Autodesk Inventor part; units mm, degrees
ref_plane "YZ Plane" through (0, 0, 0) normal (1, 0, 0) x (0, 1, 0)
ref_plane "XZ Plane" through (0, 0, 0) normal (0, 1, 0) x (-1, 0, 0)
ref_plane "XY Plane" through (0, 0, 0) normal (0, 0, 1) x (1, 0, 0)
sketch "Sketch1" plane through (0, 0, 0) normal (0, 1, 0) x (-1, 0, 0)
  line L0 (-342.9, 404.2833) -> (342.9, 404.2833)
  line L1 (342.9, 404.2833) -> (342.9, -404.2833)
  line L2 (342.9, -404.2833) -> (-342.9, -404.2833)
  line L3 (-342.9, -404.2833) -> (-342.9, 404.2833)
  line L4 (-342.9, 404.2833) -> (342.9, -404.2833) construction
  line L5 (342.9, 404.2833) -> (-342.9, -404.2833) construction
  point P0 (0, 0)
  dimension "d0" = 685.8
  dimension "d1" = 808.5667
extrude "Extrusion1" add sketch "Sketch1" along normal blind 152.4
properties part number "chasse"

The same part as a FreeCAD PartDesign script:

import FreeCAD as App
import Part
import Sketcher

V = App.Vector
Q = App.Units.Quantity


def add_polygon(sketch, points):
    """Adds a closed chain of lines whose ends are joined by coincident constraints."""
    first, n = sketch.GeometryCount, len(points)
    for a, b in zip(points, points[1:] + points[:1]):
        sketch.addGeometry(Part.LineSegment(App.Vector(*a, 0), App.Vector(*b, 0)), False)
    for i in range(n):
        sketch.addConstraint(Sketcher.Constraint("Coincident", first + i, 2, first + (i + 1) % n, 1))

doc = App.newDocument("Part")
body = doc.addObject("PartDesign::Body", "Body")

# Sketch on XZ plane
sketch1 = body.newObject("Sketcher::SketchObject", "Sketch")
sketch1.AttachmentSupport = (doc.getObject("XZ_Plane"), [""])
sketch1.MapMode = "FlatFace"
add_polygon(sketch1, [(-342.9, 404.2833), (342.9, 404.2833), (342.9, -404.2833), (-342.9, -404.2833)])  # lines 0-3
sketch1.addConstraint(Sketcher.Constraint("Horizontal", 0))
sketch1.addConstraint(Sketcher.Constraint("Vertical", 1))
sketch1.addConstraint(Sketcher.Constraint("Horizontal", 2))
sketch1.addConstraint(Sketcher.Constraint("Vertical", 3))
sketch1.addConstraint(Sketcher.Constraint("Symmetric", 0, 2, 2, 2, -1, 1))
sketch1.addConstraint(Sketcher.Constraint("DistanceX", 0, 1, 0, 2, Q("27 in")))
sketch1.addConstraint(Sketcher.Constraint("DistanceY", 1, 2, 1, 1, 808.5666))
pad1 = body.newObject("PartDesign::Pad", "Pad")
pad1.Profile = sketch1
pad1.Length = Q("6 in")
pad1.Reversed = True

doc.recompute()
